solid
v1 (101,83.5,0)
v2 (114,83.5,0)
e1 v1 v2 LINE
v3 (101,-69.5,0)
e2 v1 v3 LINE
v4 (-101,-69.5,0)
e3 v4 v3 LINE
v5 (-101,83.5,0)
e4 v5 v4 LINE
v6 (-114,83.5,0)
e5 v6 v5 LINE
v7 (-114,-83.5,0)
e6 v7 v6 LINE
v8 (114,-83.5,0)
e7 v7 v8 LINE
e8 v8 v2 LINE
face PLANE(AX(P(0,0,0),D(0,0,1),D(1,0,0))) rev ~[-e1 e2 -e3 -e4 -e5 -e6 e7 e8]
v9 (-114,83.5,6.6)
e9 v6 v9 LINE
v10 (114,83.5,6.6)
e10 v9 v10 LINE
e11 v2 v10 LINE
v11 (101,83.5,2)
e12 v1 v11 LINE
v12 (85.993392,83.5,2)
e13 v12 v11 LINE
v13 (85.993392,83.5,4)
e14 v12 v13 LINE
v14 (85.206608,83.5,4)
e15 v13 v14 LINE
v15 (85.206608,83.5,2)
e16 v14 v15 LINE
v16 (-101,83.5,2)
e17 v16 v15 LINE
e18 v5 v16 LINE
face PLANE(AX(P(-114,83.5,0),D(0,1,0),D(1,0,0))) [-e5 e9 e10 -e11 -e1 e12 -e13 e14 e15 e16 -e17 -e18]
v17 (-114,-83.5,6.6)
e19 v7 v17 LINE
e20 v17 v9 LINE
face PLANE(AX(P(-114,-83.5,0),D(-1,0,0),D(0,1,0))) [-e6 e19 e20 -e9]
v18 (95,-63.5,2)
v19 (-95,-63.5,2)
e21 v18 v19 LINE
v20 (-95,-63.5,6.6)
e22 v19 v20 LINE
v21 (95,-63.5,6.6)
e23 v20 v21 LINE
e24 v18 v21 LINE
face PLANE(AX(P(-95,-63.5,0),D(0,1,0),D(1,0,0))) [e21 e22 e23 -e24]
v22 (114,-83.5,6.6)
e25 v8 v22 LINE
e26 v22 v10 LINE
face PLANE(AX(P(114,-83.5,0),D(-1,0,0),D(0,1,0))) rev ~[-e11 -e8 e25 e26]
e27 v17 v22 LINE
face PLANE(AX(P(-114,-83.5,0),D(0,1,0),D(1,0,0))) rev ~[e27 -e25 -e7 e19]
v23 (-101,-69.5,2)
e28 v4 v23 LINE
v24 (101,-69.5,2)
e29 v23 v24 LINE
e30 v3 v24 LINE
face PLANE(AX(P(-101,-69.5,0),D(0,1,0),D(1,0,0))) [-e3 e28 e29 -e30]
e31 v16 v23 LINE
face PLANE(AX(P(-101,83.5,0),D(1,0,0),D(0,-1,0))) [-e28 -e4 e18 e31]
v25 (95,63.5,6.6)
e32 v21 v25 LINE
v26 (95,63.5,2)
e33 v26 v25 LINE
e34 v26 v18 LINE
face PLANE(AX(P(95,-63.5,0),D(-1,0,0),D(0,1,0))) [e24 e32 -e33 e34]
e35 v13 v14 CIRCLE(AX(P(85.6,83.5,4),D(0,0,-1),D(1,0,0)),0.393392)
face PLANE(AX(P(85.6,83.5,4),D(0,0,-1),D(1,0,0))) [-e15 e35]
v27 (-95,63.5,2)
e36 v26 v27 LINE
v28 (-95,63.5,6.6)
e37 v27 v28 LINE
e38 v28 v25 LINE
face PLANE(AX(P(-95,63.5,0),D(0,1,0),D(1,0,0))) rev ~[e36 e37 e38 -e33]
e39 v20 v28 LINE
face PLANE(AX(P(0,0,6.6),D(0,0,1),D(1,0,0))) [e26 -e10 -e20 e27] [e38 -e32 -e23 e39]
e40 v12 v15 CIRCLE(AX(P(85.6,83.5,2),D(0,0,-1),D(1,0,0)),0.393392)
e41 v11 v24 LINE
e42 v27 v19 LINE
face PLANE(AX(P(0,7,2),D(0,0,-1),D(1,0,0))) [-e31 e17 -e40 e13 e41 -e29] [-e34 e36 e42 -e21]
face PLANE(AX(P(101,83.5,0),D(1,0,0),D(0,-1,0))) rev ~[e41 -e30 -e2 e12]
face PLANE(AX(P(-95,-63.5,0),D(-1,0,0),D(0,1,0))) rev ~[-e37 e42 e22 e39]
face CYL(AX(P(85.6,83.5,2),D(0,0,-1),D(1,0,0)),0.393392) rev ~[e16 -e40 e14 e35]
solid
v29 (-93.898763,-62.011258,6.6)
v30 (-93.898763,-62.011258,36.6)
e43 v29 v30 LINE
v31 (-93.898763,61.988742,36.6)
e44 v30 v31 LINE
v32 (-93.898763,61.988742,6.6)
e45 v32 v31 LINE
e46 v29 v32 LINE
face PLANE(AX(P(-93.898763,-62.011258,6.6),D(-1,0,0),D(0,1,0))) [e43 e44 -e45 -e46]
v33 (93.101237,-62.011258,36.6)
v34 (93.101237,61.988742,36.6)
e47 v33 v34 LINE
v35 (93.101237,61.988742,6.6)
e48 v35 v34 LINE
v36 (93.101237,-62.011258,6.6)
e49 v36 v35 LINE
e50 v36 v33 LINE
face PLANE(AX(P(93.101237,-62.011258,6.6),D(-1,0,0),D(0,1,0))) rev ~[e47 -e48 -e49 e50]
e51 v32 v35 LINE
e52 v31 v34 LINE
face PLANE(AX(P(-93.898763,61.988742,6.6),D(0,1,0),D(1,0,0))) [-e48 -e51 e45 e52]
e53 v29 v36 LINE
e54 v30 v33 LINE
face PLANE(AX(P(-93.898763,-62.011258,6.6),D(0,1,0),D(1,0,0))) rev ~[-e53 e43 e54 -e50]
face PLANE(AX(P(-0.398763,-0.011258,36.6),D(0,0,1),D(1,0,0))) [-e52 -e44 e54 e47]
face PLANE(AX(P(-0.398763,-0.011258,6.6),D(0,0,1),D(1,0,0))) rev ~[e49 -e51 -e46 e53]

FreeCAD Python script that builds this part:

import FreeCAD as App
import Part
import Sketcher
from FreeCAD import Vector

doc = App.newDocument("Part")
body = doc.addObject("PartDesign::Body", "Body")

# Sketch on XY plane
sketch1 = body.newObject("Sketcher::SketchObject", "Sketch")
sketch1.AttachmentSupport = (doc.getObject("XY_Plane"), [""])
sketch1.MapMode = "FlatFace"
sketch1.addGeometry([
    Part.LineSegment(Vector(-114, 84, 0), Vector(-114, -84, 0)),  # 0
    Part.LineSegment(Vector(-114, -84, 0), Vector(114, -84, 0)),  # 1
    Part.LineSegment(Vector(114, -84, 0), Vector(114, 84, 0)),  # 2
    Part.LineSegment(Vector(114, 84, 0), Vector(-114, 84, 0)),  # 3
    Part.LineSegment(Vector(95, -64, 0), Vector(-95, -64, 0)),  # 4
    Part.LineSegment(Vector(-95, -64, 0), Vector(-95, 64, 0)),  # 5
    Part.LineSegment(Vector(-95, 64, 0), Vector(95, 64, 0)),  # 6
    Part.LineSegment(Vector(95, 64, 0), Vector(95, -64, 0)),  # 7
], False)
sketch1.addConstraint([
    Sketcher.Constraint("Coincident", 0, 2, 1, 1),
    Sketcher.Constraint("Coincident", 1, 2, 2, 1),
    Sketcher.Constraint("Coincident", 2, 2, 3, 1),
    Sketcher.Constraint("Coincident", 3, 2, 0, 1),
    Sketcher.Constraint("Coincident", 4, 2, 5, 1),
    Sketcher.Constraint("Coincident", 5, 2, 6, 1),
    Sketcher.Constraint("Coincident", 6, 2, 7, 1),
    Sketcher.Constraint("Coincident", 7, 2, 4, 1),
    Sketcher.Constraint("Vertical", 0),
    Sketcher.Constraint("Horizontal", 1),
    Sketcher.Constraint("Vertical", 2),
    Sketcher.Constraint("Horizontal", 3),
    Sketcher.Constraint("Horizontal", 4),
    Sketcher.Constraint("Vertical", 5),
    Sketcher.Constraint("Horizontal", 6),
    Sketcher.Constraint("Vertical", 7),
    Sketcher.Constraint("Symmetric", 0, 2, 2, 2, -1, 1),
    Sketcher.Constraint("Symmetric", 4, 2, 6, 2, -1, 1),
    Sketcher.Constraint("DistanceX", 1, 1, 1, 2, 228.0),
    Sketcher.Constraint("DistanceX", 4, 2, 4, 1, 190.0),
    Sketcher.Constraint("DistanceY", 0, 2, 0, 1, 167.0),
    Sketcher.Constraint("DistanceY", 5, 1, 5, 2, 127.0),
])
pad1 = body.newObject("PartDesign::Pad", "Pad")
pad1.Profile = sketch1
pad1.Length = 6.6

# Sketch on XY plane
sketch2 = body.newObject("Sketcher::SketchObject", "Sketch001")
sketch2.AttachmentSupport = (doc.getObject("XY_Plane"), [""])
sketch2.MapMode = "FlatFace"
sketch2.addGeometry([
    Part.LineSegment(Vector(-101, -70, 0), Vector(-101, 84, 0)),
    Part.LineSegment(Vector(-101, 84, 0), Vector(101, 84, 0)),
    Part.LineSegment(Vector(101, 84, 0), Vector(101, -70, 0)),
    Part.LineSegment(Vector(101, -70, 0), Vector(-101, -70, 0)),
], False)
sketch2.addConstraint([
    Sketcher.Constraint("Coincident", 0, 2, 1, 1),
    Sketcher.Constraint("Coincident", 1, 2, 2, 1),
    Sketcher.Constraint("Coincident", 2, 2, 3, 1),
    Sketcher.Constraint("Coincident", 3, 2, 0, 1),
    Sketcher.Constraint("Vertical", 0),
    Sketcher.Constraint("Horizontal", 1),
    Sketcher.Constraint("Vertical", 2),
    Sketcher.Constraint("Horizontal", 3),
    Sketcher.Constraint("DistanceX", 1, 1, 1, 2, 202.0),
    Sketcher.Constraint("DistanceY", 0, 1, 0, 2, 153.0),
    Sketcher.Constraint("DistanceX", 0, 2, -1, 1, 101.0),
    Sketcher.Constraint("DistanceY", -1, 1, 0, 2, 83.5),
])
pocket1 = body.newObject("PartDesign::Pocket", "Pocket")
pocket1.Profile = sketch2
pocket1.Length = 2
pocket1.Reversed = True

# Sketch on XY plane
sketch3 = body.newObject("Sketcher::SketchObject", "Sketch002")
sketch3.AttachmentSupport = (doc.getObject("XY_Plane"), [""])
sketch3.MapMode = "FlatFace"
sketch3.AttachmentOffset = App.Placement(Vector(0, 0, 2), App.Rotation())
sketch3.addGeometry(Part.Circle(Vector(85.6, 83.5, 0), Vector(0, 0, 1), 0.39), False)
sketch3.addConstraint([
    Sketcher.Constraint("DistanceX", -1, 1, 0, 3, 85.6),
    Sketcher.Constraint("DistanceY", -1, 1, 0, 3, 83.5),
    Sketcher.Constraint("Diameter", 0, 0.786784),
])
pocket2 = body.newObject("PartDesign::Pocket", "Pocket001")
pocket2.Profile = sketch3
pocket2.Length = 2
pocket2.Reversed = True
body2 = doc.addObject("PartDesign::Body", "Body001")

# Sketch on XY plane
sketch4 = body2.newObject("Sketcher::SketchObject", "Sketch003")
sketch4.AttachmentSupport = (doc.getObject("XY_Plane001"), [""])
sketch4.MapMode = "FlatFace"
sketch4.AttachmentOffset = App.Placement(Vector(0, 0, 6.6), App.Rotation())
sketch4.addGeometry([
    Part.LineSegment(Vector(-94, 62, 0), Vector(-94, -62, 0)),
    Part.LineSegment(Vector(-94, -62, 0), Vector(93, -62, 0)),
    Part.LineSegment(Vector(93, -62, 0), Vector(93, 62, 0)),
    Part.LineSegment(Vector(93, 62, 0), Vector(-94, 62, 0)),
], False)
sketch4.addConstraint([
    Sketcher.Constraint("Coincident", 0, 2, 1, 1),
    Sketcher.Constraint("Coincident", 1, 2, 2, 1),
    Sketcher.Constraint("Coincident", 2, 2, 3, 1),
    Sketcher.Constraint("Coincident", 3, 2, 0, 1),
    Sketcher.Constraint("Vertical", 0),
    Sketcher.Constraint("Horizontal", 1),
    Sketcher.Constraint("Vertical", 2),
    Sketcher.Constraint("Horizontal", 3),
    Sketcher.Constraint("DistanceX", 1, 1, 1, 2, 187.0),
    Sketcher.Constraint("DistanceY", 0, 2, 0, 1, 124.0),
    Sketcher.Constraint("DistanceX", 0, 2, -1, 1, 93.898763),
    Sketcher.Constraint("DistanceY", 0, 2, -1, 1, 62.011258),
])
pad2 = body2.newObject("PartDesign::Pad", "Pad001")
pad2.Profile = sketch4
pad2.Length = 30

doc.recompute()
